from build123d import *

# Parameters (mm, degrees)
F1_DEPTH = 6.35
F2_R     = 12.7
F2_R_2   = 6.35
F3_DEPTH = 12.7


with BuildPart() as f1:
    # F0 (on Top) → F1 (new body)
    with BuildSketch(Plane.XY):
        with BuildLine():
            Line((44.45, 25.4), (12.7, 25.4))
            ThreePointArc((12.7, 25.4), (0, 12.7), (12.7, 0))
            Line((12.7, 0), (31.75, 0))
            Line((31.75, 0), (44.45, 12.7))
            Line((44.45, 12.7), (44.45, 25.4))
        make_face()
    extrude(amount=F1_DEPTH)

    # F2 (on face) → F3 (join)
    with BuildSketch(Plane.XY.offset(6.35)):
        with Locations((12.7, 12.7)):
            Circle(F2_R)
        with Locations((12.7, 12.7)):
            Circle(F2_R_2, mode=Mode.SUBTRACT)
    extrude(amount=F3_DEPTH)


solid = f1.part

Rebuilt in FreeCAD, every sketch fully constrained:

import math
import FreeCAD as App
import Part
import Sketcher
Q = App.Units.Quantity

doc = App.newDocument("Part")
params = doc.addObject("Spreadsheet::Sheet", "Params")
for row, (alias, value) in enumerate([
    ("sketch1_radius", "0.5 in"),
    ("sketch1_width", "1.25 in"),
    ("pad1_length", "0.25 in"),
    ("sketch2_diameter", "1 in"),
    ("sketch2_diameter2", "0.5 in"),
    ("pad2_length", "0.5 in"),
], start=1):
    params.set(f"A{row}", alias)
    params.set(f"B{row}", "=" + value)
    params.setAlias(f"B{row}", alias)

body = doc.addObject("PartDesign::Body", "Body")

sketch1 = doc.addObject("Sketcher::SketchObject", "Sketch")
body.addObject(sketch1)
sketch1.AttachmentSupport = (doc.XY_Plane, [""])
sketch1.MapMode = "FlatFace"
sketch1.addGeometry(Part.LineSegment(App.Vector(44, 25, 0), App.Vector(13, 25, 0)), False)
sketch1.addGeometry(Part.ArcOfCircle(Part.Circle(App.Vector(13, 13, 0), App.Vector(0, 0, 1), 13), math.radians(90), math.radians(270)), False)
sketch1.addGeometry(Part.LineSegment(App.Vector(13, 0, 0), App.Vector(32, 0, 0)), False)
sketch1.addGeometry(Part.LineSegment(App.Vector(32, 0, 0), App.Vector(44, 13, 0)), False)
sketch1.addGeometry(Part.LineSegment(App.Vector(44, 13, 0), App.Vector(44, 25, 0)), False)
sketch1.addConstraint(Sketcher.Constraint("Tangent", 0, 2, 1, 1))
sketch1.addConstraint(Sketcher.Constraint("Tangent", 1, 2, 2, 1))
sketch1.addConstraint(Sketcher.Constraint("Coincident", 2, 2, 3, 1))
sketch1.addConstraint(Sketcher.Constraint("Coincident", 3, 2, 4, 1))
sketch1.addConstraint(Sketcher.Constraint("Coincident", 4, 2, 0, 1))
sketch1.addConstraint(Sketcher.Constraint("Horizontal", 0))
sketch1.addConstraint(Sketcher.Constraint("Horizontal", 2))
sketch1.addConstraint(Sketcher.Constraint("Vertical", 4))
sketch1.addConstraint(Sketcher.Constraint("PointOnObject", 1, 2, -1))
sketch1.addConstraint(Sketcher.Constraint("Horizontal", 1, 3, 3, 2))
sketch1.addConstraint(Sketcher.Constraint("Radius", 1, Q("0.5 in")))
sketch1.addConstraint(Sketcher.Constraint("Angle", 3, Q("45 deg")))
sketch1.addConstraint(Sketcher.Constraint("DistanceX", 0, 2, 0, 1, Q("1.25 in")))
sketch1.addConstraint(Sketcher.Constraint("DistanceX", -1, 1, 1, 3, Q("0.5 in")))
sketch1.setExpression("Constraints[10]", "Params.sketch1_radius")
sketch1.setExpression("Constraints[12]", "Params.sketch1_width")
pad1 = doc.addObject("PartDesign::Pad", "Pad")
body.addObject(pad1)
pad1.Profile = sketch1
pad1.setExpression("Length", "Params.pad1_length")

sketch2 = doc.addObject("Sketcher::SketchObject", "Sketch001")
body.addObject(sketch2)
sketch2.AttachmentSupport = (doc.XY_Plane, [""])
sketch2.MapMode = "FlatFace"
sketch2.AttachmentOffset = App.Placement(App.Vector(0, 0, 0.25 * 25.4), App.Rotation())
sketch2.addGeometry(Part.Circle(App.Vector(13, 13, 0), App.Vector(0, 0, 1), 13), False)
sketch2.addGeometry(Part.Circle(App.Vector(13, 13, 0), App.Vector(0, 0, 1), 6), False)
sketch2.addConstraint(Sketcher.Constraint("Coincident", 1, 3, 0, 3))
sketch2.addConstraint(Sketcher.Constraint("Diameter", 0, Q("1 in")))
sketch2.addConstraint(Sketcher.Constraint("Diameter", 1, Q("0.5 in")))
sketch2.addConstraint(Sketcher.Constraint("DistanceX", -1, 1, 0, 3, Q("0.5 in")))
sketch2.addConstraint(Sketcher.Constraint("DistanceY", -1, 1, 0, 3, Q("0.5 in")))
sketch2.setExpression("Constraints[1]", "Params.sketch2_diameter")
sketch2.setExpression("Constraints[2]", "Params.sketch2_diameter2")
pad2 = doc.addObject("PartDesign::Pad", "Pad001")
body.addObject(pad2)
pad2.Profile = sketch2
pad2.setExpression("Length", "Params.pad2_length")

doc.recompute()
